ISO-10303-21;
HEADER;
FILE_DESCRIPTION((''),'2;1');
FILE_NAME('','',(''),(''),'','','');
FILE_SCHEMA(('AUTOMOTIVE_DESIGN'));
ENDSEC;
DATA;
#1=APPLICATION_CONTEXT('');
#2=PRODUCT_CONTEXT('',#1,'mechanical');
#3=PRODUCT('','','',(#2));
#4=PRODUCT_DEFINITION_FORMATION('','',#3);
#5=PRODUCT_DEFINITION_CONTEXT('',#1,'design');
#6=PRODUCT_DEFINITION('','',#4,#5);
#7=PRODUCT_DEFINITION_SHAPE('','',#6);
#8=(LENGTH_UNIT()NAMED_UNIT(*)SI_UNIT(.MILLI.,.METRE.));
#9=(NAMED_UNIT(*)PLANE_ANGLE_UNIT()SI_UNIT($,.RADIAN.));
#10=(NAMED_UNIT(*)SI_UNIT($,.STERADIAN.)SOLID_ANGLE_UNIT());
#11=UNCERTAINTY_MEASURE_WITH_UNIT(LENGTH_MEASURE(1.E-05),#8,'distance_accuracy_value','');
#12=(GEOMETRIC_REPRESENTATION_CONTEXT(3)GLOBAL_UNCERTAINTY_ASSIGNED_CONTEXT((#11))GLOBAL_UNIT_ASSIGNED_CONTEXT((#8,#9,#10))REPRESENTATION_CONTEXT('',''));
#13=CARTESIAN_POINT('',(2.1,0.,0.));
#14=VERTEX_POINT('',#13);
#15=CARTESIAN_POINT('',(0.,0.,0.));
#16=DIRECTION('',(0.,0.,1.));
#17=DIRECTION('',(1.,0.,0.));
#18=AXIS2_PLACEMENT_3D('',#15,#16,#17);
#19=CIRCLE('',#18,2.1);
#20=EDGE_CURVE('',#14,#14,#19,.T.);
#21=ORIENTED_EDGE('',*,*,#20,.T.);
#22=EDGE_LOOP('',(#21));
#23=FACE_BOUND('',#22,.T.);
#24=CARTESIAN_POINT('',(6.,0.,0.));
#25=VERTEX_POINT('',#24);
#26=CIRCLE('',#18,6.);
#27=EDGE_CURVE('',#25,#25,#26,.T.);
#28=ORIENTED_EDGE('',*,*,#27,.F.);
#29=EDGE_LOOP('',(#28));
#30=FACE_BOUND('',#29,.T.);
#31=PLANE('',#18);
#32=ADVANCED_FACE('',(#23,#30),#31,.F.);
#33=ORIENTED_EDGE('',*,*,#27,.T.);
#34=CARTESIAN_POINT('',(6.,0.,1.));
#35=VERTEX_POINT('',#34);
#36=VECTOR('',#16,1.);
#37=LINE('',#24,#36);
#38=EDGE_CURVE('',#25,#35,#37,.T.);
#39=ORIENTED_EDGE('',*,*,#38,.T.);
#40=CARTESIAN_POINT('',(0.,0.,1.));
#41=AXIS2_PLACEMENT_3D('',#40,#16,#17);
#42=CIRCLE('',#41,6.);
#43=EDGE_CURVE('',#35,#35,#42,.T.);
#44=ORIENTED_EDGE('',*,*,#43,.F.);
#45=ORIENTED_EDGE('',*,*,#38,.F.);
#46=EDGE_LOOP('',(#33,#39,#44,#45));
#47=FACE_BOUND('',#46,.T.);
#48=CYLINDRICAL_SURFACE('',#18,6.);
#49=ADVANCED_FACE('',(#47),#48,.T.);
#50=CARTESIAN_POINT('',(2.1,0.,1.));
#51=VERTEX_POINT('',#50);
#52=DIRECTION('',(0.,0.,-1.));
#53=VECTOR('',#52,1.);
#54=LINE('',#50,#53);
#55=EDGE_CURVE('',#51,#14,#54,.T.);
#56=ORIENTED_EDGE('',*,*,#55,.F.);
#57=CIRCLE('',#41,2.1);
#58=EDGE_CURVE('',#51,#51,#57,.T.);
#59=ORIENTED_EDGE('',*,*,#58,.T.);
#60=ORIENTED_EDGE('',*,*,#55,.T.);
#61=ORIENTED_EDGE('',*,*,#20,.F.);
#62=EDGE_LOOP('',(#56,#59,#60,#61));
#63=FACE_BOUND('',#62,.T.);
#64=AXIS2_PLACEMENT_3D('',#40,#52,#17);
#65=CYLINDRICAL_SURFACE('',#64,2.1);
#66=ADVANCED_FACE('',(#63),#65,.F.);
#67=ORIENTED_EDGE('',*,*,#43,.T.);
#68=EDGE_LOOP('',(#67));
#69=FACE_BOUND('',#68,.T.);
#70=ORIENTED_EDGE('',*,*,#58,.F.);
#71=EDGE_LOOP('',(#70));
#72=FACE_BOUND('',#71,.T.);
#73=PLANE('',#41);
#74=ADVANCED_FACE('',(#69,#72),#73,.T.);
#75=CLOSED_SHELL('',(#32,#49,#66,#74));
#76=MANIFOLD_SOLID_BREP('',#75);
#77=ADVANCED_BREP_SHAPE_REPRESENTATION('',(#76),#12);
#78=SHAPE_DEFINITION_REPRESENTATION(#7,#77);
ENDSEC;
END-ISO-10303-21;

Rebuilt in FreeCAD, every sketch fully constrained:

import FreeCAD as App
import Part
import Sketcher
Q = App.Units.Quantity

doc = App.newDocument("Part")
body = doc.addObject("PartDesign::Body", "Body")

# Sketch on XZ plane
sketch1 = body.newObject("Sketcher::SketchObject", "Sketch")
sketch1.AttachmentSupport = (doc.getObject("XZ_Plane"), [""])
sketch1.MapMode = "FlatFace"
sketch1.addGeometry([
    Part.LineSegment(App.Vector(2.1, 0, 0), App.Vector(2.1, 1, 0)),
    Part.LineSegment(App.Vector(2.1, 1, 0), App.Vector(6, 1, 0)),
    Part.LineSegment(App.Vector(6, 1, 0), App.Vector(6, 0, 0)),
    Part.LineSegment(App.Vector(6, 0, 0), App.Vector(2.1, 0, 0)),
], False)
sketch1.addConstraint([
    Sketcher.Constraint("Coincident", 0, 2, 1, 1),
    Sketcher.Constraint("Coincident", 1, 2, 2, 1),
    Sketcher.Constraint("Coincident", 2, 2, 3, 1),
    Sketcher.Constraint("Coincident", 3, 2, 0, 1),
    Sketcher.Constraint("Vertical", 0),
    Sketcher.Constraint("Horizontal", 1),
    Sketcher.Constraint("Vertical", 2),
    Sketcher.Constraint("Horizontal", 3),
    Sketcher.Constraint("PointOnObject", 2, 2, -1),
    Sketcher.Constraint("DistanceY", 0, 1, 0, 2, Q("1 mm")),
    Sketcher.Constraint("DistanceX", 1, 1, 1, 2, Q("3.9 mm")),
    Sketcher.Constraint("DistanceX", -1, 1, 1, 2, Q("6 mm")),
])
revolution = body.newObject("PartDesign::Revolution", "Revolution")
revolution.Profile = sketch1
revolution.ReferenceAxis = (sketch1, ["V_Axis"])
revolution.Angle = 360

doc.recompute()
